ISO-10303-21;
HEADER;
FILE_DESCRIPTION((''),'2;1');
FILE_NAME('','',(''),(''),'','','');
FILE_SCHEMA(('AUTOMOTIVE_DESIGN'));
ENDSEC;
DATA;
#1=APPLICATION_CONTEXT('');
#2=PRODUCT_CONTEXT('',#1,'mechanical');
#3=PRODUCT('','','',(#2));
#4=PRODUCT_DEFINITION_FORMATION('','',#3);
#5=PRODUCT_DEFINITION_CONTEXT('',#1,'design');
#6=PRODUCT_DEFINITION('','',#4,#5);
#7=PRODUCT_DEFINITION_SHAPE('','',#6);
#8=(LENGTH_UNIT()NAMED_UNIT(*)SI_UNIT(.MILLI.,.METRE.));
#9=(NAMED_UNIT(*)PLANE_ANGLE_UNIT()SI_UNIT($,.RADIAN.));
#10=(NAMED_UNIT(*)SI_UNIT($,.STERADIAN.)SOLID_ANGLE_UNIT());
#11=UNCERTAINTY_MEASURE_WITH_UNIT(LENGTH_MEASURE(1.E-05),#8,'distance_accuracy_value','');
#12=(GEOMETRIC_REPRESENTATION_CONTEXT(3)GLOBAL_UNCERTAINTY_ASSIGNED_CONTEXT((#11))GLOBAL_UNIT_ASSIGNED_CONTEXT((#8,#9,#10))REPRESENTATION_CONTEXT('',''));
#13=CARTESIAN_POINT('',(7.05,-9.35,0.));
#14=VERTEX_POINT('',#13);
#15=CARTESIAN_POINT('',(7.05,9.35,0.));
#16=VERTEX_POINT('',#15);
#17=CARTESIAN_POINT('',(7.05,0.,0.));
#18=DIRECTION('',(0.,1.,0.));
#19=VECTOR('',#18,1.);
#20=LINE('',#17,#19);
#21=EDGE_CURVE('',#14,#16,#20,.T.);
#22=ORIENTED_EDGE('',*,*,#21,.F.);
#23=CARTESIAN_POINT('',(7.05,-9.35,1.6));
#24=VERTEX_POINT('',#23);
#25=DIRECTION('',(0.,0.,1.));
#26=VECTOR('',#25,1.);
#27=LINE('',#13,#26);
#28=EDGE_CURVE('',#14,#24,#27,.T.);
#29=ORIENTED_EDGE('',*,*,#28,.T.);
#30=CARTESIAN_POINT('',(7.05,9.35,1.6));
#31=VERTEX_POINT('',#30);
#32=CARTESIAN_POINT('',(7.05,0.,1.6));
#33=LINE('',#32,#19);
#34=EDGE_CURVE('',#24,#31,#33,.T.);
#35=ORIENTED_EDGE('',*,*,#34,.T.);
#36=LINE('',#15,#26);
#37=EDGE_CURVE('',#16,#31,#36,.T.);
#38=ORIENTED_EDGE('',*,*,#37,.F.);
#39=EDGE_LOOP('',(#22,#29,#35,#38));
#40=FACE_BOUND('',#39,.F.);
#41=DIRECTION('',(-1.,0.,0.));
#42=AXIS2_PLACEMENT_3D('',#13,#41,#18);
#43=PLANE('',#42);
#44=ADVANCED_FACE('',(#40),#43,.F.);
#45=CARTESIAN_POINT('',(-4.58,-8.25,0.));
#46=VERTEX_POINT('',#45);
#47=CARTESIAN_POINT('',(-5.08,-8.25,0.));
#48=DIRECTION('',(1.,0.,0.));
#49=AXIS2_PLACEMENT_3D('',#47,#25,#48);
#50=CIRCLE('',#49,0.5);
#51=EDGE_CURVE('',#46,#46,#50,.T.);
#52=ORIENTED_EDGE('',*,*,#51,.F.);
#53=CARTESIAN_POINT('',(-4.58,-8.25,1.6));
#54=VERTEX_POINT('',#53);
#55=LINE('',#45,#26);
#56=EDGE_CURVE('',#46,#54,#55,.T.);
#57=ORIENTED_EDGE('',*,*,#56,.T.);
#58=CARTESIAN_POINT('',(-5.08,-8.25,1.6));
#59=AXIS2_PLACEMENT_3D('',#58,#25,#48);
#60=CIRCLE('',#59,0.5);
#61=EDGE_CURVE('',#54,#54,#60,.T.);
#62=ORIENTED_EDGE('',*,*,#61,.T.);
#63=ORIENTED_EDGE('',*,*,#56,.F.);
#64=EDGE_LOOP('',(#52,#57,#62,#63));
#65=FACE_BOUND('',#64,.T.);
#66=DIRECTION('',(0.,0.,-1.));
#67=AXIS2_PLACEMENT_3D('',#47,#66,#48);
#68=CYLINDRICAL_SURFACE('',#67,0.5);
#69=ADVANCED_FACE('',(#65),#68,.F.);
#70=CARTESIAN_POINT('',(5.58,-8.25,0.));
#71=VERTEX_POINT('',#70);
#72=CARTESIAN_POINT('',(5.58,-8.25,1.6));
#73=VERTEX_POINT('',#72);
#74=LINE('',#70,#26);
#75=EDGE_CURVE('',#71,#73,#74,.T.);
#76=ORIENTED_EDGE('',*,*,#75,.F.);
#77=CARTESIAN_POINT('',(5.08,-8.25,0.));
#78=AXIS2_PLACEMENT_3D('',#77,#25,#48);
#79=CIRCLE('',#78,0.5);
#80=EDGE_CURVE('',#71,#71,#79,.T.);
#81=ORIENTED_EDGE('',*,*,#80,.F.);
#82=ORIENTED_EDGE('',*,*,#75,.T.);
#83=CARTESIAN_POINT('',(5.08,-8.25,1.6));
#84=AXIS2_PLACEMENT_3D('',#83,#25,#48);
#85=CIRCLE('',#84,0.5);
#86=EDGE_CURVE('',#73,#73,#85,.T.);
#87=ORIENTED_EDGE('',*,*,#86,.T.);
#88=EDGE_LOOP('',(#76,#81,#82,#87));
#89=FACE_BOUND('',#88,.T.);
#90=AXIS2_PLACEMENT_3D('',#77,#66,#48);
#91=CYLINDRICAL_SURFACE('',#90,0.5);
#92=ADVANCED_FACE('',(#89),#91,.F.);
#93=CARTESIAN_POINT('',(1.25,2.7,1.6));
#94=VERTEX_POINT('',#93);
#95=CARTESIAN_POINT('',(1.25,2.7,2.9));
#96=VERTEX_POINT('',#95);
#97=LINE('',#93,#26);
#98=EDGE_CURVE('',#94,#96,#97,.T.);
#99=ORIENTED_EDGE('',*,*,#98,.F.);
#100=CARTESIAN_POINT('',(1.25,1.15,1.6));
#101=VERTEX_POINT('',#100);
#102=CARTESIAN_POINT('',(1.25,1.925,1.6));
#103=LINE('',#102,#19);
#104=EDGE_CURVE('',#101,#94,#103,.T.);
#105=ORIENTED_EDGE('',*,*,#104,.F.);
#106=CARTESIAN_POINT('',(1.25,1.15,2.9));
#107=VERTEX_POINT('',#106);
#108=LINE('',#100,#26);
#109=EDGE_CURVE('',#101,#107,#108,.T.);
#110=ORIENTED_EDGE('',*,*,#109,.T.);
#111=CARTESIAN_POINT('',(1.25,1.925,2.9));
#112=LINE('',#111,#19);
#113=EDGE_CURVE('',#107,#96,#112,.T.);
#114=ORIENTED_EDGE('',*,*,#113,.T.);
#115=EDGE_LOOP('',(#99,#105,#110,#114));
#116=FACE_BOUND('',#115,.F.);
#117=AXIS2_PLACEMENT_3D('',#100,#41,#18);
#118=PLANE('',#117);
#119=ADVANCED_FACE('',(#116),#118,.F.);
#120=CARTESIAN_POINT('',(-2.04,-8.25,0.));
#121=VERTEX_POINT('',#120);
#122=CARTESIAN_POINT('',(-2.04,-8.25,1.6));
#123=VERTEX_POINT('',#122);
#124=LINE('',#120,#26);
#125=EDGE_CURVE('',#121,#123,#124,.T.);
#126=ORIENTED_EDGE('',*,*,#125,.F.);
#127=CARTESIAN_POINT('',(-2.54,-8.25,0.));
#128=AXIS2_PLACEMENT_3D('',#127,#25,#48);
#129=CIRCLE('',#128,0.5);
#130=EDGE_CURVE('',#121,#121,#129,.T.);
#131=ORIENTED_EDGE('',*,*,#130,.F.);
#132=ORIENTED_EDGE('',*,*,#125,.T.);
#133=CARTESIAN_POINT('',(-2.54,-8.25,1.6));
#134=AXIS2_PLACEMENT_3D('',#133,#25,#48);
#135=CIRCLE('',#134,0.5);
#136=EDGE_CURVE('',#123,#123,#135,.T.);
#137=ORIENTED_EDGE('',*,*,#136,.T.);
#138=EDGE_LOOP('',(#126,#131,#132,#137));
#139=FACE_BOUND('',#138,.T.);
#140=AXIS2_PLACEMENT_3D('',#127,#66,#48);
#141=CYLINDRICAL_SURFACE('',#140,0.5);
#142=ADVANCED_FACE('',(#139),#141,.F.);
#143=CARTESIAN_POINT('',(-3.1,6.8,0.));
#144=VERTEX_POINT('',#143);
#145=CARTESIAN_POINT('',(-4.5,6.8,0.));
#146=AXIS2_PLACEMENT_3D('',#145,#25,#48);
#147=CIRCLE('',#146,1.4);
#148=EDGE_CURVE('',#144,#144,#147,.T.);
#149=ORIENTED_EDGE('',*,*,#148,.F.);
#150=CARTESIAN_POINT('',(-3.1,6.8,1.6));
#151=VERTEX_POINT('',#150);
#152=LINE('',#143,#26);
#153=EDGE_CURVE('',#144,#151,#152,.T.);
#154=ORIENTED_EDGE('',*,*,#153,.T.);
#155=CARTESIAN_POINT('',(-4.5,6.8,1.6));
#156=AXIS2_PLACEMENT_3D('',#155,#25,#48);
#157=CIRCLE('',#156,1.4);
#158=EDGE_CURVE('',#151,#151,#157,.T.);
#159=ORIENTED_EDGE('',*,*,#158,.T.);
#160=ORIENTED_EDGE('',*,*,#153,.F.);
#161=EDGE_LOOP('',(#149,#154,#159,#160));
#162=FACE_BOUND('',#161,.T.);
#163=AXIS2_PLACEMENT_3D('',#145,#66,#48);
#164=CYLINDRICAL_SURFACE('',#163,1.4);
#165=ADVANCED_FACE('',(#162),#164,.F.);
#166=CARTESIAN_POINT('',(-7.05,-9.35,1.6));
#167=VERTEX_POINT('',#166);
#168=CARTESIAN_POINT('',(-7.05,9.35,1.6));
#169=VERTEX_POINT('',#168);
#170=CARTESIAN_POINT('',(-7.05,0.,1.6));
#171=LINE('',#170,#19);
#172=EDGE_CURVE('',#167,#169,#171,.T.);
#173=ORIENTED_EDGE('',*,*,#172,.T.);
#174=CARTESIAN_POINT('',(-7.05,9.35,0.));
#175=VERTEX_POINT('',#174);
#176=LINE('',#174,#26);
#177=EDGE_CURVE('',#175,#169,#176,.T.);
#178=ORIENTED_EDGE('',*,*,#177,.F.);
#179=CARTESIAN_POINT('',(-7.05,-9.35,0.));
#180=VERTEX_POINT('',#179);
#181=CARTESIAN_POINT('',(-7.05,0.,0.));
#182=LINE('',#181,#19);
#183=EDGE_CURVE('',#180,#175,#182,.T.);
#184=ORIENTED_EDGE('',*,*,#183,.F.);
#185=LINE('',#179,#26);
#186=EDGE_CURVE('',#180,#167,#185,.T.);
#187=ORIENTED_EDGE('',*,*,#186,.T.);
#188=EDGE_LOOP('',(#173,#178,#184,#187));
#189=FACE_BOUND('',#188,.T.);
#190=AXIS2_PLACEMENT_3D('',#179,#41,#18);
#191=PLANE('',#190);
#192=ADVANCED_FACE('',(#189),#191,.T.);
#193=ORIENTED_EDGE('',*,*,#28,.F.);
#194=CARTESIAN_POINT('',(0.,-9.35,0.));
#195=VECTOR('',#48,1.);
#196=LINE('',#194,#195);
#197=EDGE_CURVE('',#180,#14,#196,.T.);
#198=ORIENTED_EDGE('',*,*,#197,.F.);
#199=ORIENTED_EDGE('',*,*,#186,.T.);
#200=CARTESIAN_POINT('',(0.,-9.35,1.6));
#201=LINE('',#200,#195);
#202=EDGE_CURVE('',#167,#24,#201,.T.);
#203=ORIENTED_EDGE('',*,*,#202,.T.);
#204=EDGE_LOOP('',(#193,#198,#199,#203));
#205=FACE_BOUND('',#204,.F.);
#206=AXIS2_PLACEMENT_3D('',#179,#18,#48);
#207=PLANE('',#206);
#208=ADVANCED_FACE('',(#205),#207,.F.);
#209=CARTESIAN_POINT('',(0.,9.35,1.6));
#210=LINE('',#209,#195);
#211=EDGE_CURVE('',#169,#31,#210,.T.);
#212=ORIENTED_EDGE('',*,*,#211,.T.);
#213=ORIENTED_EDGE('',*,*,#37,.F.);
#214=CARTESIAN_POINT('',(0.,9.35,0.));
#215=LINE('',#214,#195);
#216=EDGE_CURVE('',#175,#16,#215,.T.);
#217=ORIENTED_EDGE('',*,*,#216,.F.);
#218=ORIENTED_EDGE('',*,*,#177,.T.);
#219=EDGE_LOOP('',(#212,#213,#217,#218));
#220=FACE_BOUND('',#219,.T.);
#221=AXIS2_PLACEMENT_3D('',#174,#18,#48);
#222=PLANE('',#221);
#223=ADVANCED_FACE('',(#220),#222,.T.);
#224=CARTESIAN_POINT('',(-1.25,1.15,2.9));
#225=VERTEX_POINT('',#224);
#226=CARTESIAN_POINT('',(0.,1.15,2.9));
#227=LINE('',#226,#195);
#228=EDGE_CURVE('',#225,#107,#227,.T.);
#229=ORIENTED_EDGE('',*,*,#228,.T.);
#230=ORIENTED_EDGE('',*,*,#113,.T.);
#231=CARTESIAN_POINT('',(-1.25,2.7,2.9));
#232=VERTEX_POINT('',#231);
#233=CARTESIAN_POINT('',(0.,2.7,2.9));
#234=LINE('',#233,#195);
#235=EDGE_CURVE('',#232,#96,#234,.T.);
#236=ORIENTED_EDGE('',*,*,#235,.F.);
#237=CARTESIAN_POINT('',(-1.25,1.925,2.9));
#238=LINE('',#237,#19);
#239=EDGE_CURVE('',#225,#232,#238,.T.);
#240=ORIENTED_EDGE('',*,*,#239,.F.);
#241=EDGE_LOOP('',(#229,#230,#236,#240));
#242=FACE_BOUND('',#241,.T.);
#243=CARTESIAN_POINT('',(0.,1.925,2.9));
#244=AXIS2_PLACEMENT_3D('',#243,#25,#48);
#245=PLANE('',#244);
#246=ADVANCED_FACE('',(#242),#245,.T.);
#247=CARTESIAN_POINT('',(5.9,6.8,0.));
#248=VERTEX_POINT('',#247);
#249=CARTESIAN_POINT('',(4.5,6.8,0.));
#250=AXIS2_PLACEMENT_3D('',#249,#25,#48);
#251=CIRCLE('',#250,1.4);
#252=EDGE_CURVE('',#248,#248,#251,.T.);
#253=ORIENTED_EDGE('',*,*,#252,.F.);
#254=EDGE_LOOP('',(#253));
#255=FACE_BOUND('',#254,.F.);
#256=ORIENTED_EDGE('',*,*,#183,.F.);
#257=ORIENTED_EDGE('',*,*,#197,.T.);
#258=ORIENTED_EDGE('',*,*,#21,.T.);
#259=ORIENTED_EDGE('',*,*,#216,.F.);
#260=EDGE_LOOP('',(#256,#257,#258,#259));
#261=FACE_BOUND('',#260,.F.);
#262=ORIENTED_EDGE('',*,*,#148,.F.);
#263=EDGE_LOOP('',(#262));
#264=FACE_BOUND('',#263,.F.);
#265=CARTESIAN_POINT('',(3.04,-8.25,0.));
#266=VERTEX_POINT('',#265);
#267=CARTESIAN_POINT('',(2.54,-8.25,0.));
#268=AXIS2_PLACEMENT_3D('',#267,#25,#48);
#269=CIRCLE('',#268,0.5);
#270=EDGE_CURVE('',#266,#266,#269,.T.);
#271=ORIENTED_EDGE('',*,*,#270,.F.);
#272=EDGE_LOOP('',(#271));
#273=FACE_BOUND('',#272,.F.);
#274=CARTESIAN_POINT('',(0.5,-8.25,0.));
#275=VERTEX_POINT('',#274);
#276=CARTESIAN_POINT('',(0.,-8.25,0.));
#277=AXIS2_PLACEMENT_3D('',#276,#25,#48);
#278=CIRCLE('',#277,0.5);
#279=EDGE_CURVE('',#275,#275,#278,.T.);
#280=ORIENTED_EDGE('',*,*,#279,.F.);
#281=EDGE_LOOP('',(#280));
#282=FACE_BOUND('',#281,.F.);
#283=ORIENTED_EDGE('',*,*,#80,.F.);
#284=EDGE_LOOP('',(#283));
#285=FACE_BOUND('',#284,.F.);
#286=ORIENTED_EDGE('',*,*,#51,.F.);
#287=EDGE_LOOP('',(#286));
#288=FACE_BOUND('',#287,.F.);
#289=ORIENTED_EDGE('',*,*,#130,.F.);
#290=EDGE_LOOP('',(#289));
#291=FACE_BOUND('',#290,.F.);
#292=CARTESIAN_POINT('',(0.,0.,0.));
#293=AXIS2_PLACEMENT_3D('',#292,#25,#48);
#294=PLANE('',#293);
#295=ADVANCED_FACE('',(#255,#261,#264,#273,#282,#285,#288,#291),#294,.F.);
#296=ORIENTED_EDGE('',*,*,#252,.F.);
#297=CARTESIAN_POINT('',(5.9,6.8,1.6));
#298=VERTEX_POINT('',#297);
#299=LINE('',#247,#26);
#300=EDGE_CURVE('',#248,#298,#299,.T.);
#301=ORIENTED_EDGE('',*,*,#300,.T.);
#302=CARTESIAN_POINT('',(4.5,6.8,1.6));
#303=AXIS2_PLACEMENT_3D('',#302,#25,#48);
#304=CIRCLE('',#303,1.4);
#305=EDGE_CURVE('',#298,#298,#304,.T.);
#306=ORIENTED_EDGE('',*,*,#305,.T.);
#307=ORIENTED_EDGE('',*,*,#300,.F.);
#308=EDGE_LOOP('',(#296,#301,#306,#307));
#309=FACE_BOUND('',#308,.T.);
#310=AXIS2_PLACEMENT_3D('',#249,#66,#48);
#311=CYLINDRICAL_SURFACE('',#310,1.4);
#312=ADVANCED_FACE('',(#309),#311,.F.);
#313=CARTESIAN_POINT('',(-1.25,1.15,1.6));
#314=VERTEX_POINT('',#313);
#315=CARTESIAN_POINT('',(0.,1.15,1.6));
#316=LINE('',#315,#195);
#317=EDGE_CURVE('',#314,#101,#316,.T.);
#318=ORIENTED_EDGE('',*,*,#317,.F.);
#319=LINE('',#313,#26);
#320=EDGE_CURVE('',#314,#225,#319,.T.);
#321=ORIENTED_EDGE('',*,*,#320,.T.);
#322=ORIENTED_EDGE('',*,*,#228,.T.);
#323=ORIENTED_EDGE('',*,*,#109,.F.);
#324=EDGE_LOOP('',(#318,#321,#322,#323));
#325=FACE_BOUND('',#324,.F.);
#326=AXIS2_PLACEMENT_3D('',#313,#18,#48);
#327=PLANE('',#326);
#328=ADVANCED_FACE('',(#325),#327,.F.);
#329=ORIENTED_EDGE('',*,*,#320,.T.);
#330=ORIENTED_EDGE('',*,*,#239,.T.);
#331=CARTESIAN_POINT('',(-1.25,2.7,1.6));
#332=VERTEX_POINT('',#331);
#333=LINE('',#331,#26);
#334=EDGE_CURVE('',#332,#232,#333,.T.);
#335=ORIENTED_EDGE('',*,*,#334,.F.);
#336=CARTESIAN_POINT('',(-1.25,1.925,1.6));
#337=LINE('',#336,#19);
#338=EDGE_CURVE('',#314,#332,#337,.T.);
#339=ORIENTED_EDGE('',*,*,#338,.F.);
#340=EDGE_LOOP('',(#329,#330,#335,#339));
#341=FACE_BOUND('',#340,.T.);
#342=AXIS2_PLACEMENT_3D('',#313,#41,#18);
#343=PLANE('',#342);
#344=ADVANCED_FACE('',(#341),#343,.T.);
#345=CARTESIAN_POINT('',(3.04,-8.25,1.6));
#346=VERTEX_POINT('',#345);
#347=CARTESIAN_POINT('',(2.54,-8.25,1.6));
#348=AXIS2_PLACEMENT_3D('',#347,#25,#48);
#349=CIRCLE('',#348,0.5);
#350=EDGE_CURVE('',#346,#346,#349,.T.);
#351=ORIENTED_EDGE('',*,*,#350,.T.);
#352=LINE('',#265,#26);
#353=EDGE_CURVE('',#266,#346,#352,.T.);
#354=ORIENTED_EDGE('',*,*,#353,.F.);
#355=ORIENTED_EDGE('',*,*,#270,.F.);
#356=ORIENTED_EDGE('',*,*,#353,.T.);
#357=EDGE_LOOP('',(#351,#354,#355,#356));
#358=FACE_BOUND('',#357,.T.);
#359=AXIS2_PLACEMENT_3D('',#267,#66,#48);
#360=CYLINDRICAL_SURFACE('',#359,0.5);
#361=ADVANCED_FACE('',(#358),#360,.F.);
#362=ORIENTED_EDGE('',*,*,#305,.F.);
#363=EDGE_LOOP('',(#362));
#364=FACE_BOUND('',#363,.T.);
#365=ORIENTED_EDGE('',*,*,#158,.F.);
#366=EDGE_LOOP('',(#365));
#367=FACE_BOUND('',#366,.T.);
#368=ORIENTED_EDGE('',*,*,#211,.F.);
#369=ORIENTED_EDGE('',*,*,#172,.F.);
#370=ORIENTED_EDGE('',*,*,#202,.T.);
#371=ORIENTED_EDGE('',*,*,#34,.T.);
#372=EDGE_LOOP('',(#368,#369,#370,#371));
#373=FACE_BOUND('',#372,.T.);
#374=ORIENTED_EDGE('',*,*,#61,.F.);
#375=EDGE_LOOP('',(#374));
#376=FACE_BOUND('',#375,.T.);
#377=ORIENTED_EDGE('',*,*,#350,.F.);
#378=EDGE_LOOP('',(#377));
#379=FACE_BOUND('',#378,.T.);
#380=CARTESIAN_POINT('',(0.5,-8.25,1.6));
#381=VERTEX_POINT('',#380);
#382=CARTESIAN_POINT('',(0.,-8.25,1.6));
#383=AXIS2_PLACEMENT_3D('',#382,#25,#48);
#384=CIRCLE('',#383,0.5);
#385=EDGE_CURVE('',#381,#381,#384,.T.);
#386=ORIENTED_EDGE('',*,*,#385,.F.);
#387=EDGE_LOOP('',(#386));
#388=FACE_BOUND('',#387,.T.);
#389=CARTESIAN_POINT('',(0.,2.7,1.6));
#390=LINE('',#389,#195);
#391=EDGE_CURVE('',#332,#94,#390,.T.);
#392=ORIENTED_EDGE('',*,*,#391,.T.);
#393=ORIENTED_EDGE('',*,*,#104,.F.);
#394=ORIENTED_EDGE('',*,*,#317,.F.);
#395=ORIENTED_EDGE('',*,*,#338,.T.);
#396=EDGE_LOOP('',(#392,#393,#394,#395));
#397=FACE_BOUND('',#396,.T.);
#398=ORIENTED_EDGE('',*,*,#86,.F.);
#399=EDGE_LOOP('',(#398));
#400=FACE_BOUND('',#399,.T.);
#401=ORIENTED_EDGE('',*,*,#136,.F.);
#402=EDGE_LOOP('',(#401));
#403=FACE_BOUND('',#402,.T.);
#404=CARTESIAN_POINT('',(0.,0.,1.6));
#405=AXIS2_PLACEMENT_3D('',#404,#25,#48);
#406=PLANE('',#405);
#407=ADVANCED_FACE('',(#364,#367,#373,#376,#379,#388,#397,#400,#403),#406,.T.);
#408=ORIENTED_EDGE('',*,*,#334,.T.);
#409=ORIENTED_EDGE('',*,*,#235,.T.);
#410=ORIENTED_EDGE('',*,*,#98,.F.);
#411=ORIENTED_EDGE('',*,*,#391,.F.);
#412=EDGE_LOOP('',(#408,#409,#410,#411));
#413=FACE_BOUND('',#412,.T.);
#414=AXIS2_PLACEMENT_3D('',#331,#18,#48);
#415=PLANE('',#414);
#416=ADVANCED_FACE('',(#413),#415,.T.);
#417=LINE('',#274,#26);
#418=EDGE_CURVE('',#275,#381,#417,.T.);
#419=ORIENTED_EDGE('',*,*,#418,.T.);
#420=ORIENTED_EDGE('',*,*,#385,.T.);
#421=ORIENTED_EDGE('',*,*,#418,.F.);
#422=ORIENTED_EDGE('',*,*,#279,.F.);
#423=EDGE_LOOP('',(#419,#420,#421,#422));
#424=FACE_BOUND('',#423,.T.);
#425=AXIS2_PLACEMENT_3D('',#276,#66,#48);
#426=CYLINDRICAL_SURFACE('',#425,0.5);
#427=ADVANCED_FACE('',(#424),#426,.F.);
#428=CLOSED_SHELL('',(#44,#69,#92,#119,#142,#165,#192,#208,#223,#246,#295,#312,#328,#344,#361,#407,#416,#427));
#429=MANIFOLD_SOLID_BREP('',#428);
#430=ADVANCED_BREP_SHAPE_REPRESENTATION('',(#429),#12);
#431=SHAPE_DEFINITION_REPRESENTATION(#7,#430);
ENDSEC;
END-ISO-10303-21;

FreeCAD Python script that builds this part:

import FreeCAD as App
import Part
import Sketcher

V = App.Vector

doc = App.newDocument("Part")
body = doc.addObject("PartDesign::Body", "Body")

# Sketch on XY plane
sketch1 = doc.addObject("Sketcher::SketchObject", "Sketch")
body.addObject(sketch1)
sketch1.AttachmentSupport = (doc.XY_Plane, [""])
sketch1.MapMode = "FlatFace"
sketch1.addGeometry([
    Part.LineSegment(V(-7, 9.3, 0), V(-7, -9.3, 0)),  # 0
    Part.LineSegment(V(-7, -9.3, 0), V(7, -9.3, 0)),  # 1
    Part.LineSegment(V(7, -9.3, 0), V(7, 9.3, 0)),  # 2
    Part.LineSegment(V(7, 9.3, 0), V(-7, 9.3, 0)),  # 3
    Part.Circle(V(-5.1, -8.2, 0), V(0, 0, 1), 0.5),  # 4
    Part.Circle(V(-2.5, -8.2, 0), V(0, 0, 1), 0.5),  # 5
    Part.Circle(V(0, -8.2, 0), V(0, 0, 1), 0.5),  # 6
    Part.Circle(V(2.5, -8.2, 0), V(0, 0, 1), 0.5),  # 7
    Part.Circle(V(5.1, -8.2, 0), V(0, 0, 1), 0.5),  # 8
    Part.Circle(V(-4.5, 6.8, 0), V(0, 0, 1), 1.4),  # 9
    Part.Circle(V(4.5, 6.8, 0), V(0, 0, 1), 1.4),  # 10
], False)
sketch1.addConstraint([
    Sketcher.Constraint("Coincident", 0, 2, 1, 1),
    Sketcher.Constraint("Coincident", 1, 2, 2, 1),
    Sketcher.Constraint("Coincident", 2, 2, 3, 1),
    Sketcher.Constraint("Coincident", 3, 2, 0, 1),
    Sketcher.Constraint("Vertical", 0),
    Sketcher.Constraint("Horizontal", 1),
    Sketcher.Constraint("Vertical", 2),
    Sketcher.Constraint("Horizontal", 3),
    Sketcher.Constraint("Equal", 4, 5),
    Sketcher.Constraint("Equal", 5, 6),
    Sketcher.Constraint("Equal", 6, 7),
    Sketcher.Constraint("Equal", 7, 8),
    Sketcher.Constraint("Equal", 9, 10),
    Sketcher.Constraint("Symmetric", 0, 2, 2, 2, -1, 1),
    Sketcher.Constraint("Symmetric", 5, 3, 7, 3, -2),
    Sketcher.Constraint("Symmetric", 4, 3, 8, 3, -2),
    Sketcher.Constraint("Symmetric", 9, 3, 10, 3, -2),
    Sketcher.Constraint("PointOnObject", 6, 3, -2),
    Sketcher.Constraint("Horizontal", 4, 3, 5, 3),
    Sketcher.Constraint("Horizontal", 5, 3, 6, 3),
    Sketcher.Constraint("Diameter", 4, 1.0),
    Sketcher.Constraint("Diameter", 9, 2.8),
    Sketcher.Constraint("DistanceX", 1, 1, 1, 2, 14.1),
    Sketcher.Constraint("DistanceY", 0, 2, 0, 1, 18.7),
    Sketcher.Constraint("DistanceX", 9, 3, 10, 3, 9.0),
    Sketcher.Constraint("DistanceY", -1, 1, 9, 3, 6.8),
    Sketcher.Constraint("DistanceY", 0, 2, 4, 3, 1.1),
    Sketcher.Constraint("DistanceX", 4, 3, -1, 1, 5.08),
    Sketcher.Constraint("DistanceX", 5, 3, -1, 1, 2.54),
])
pad1 = doc.addObject("PartDesign::Pad", "Pad")
body.addObject(pad1)
pad1.Profile = sketch1
pad1.Length = 1.6

# Sketch on XY plane
sketch2 = doc.addObject("Sketcher::SketchObject", "Sketch001")
body.addObject(sketch2)
sketch2.AttachmentSupport = (doc.XY_Plane, [""])
sketch2.MapMode = "FlatFace"
sketch2.AttachmentOffset = App.Placement(V(0, 0, 1.6), App.Rotation())
sketch2.addGeometry([
    Part.LineSegment(V(-1.2, 2.7, 0), V(-1.2, 1.1, 0)),
    Part.LineSegment(V(-1.2, 1.1, 0), V(1.2, 1.1, 0)),
    Part.LineSegment(V(1.2, 1.1, 0), V(1.2, 2.7, 0)),
    Part.LineSegment(V(1.2, 2.7, 0), V(-1.2, 2.7, 0)),
], False)
sketch2.addConstraint([
    Sketcher.Constraint("Coincident", 0, 2, 1, 1),
    Sketcher.Constraint("Coincident", 1, 2, 2, 1),
    Sketcher.Constraint("Coincident", 2, 2, 3, 1),
    Sketcher.Constraint("Coincident", 3, 2, 0, 1),
    Sketcher.Constraint("Vertical", 0),
    Sketcher.Constraint("Horizontal", 1),
    Sketcher.Constraint("Vertical", 2),
    Sketcher.Constraint("Horizontal", 3),
    Sketcher.Constraint("DistanceX", 1, 1, 1, 2, 2.5),
    Sketcher.Constraint("DistanceY", 0, 2, 0, 1, 1.55),
    Sketcher.Constraint("DistanceY", -1, 1, 2, 2, 2.7),
    Sketcher.Constraint("DistanceX", 0, 2, -1, 1, 1.25),
])
pad2 = doc.addObject("PartDesign::Pad", "Pad001")
body.addObject(pad2)
pad2.Profile = sketch2
pad2.Length = 1.3

doc.recompute()
